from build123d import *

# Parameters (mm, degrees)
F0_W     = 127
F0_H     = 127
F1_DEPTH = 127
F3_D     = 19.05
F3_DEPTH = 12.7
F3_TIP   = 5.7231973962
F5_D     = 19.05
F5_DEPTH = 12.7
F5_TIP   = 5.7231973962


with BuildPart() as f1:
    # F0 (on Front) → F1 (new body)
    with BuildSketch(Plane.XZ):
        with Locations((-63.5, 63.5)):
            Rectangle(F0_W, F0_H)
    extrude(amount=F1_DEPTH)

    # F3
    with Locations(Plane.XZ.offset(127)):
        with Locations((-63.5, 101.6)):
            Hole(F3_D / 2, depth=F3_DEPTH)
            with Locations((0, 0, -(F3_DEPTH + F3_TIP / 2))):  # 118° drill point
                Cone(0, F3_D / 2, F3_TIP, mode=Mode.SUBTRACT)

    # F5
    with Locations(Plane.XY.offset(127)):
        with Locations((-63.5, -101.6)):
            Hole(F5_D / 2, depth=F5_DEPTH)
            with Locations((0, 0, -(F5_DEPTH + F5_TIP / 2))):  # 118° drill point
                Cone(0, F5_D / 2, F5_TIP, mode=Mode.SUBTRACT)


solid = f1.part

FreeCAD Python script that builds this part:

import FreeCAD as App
import Part
import Sketcher

V = App.Vector
Q = App.Units.Quantity


def add_polygon(sketch, points):
    """Adds a closed chain of lines whose ends are joined by coincident constraints."""
    first, n = sketch.GeometryCount, len(points)
    for a, b in zip(points, points[1:] + points[:1]):
        sketch.addGeometry(Part.LineSegment(App.Vector(*a, 0), App.Vector(*b, 0)), False)
    for i in range(n):
        sketch.addConstraint(Sketcher.Constraint("Coincident", first + i, 2, first + (i + 1) % n, 1))

doc = App.newDocument("Part")
params = doc.addObject("Spreadsheet::Sheet", "Params")
for row, (alias, value) in enumerate([
    ("sketch1_width", "5 in"),
    ("pad1_length", "5 in"),
    ("sketch2_diameter", "0.75 in"),
    ("hole_diameter", "0.75 in"),
    ("hole_depth", "0.5 in"),
    ("sketch3_diameter", "0.75 in"),
    ("hole2_diameter", "0.75 in"),
    ("hole2_depth", "0.5 in"),
], start=1):
    params.set(f"A{row}", alias)
    params.set(f"B{row}", "=" + value)
    params.setAlias(f"B{row}", alias)

body = doc.addObject("PartDesign::Body", "Body")

# Sketch on XZ plane
sketch1 = body.newObject("Sketcher::SketchObject", "Sketch")
sketch1.AttachmentSupport = (doc.getObject("XZ_Plane"), [""])
sketch1.MapMode = "FlatFace"
add_polygon(sketch1, [(-127, 127), (-127, 0), (0, 0), (0, 127)])  # lines 0-3
sketch1.addConstraint([
    Sketcher.Constraint("Vertical", 0),
    Sketcher.Constraint("Horizontal", 1),
    Sketcher.Constraint("Vertical", 2),
    Sketcher.Constraint("Horizontal", 3),
    Sketcher.Constraint("Coincident", 1, 2, -1, 1),
    Sketcher.Constraint("Equal", 3, 0),
    Sketcher.Constraint("DistanceX", 1, 1, 1, 2, Q("5 in")),
])
sketch1.setExpression("Constraints[10]", "Params.sketch1_width")
pad1 = body.newObject("PartDesign::Pad", "Pad")
pad1.Profile = sketch1
pad1.setExpression("Length", "Params.pad1_length")

# Sketch on XZ plane
sketch2 = body.newObject("Sketcher::SketchObject", "Sketch001")
sketch2.AttachmentSupport = (doc.getObject("XZ_Plane"), [""])
sketch2.MapMode = "FlatFace"
sketch2.AttachmentOffset = App.Placement(V(0, 0, 5 * 25.4), App.Rotation())
sketch2.addGeometry(Part.Circle(V(-64, 102, 0), V(0, 0, 1), 10), False)
sketch2.addConstraint([
    Sketcher.Constraint("Diameter", 0, Q("0.75 in")),
    Sketcher.Constraint("DistanceY", -1, 1, 0, 3, Q("4 in")),
    Sketcher.Constraint("DistanceX", 0, 3, -1, 1, Q("2.5 in")),
])
sketch2.setExpression("Constraints[0]", "Params.sketch2_diameter")
doc.recompute()
hole = body.newObject("PartDesign::Hole", "Hole")
hole.Profile = sketch2
hole.ThreadType = "None"
hole.setExpression("Diameter", "Params.hole_diameter")
hole.DepthType = "Dimension"
hole.setExpression("Depth", "Params.hole_depth")
hole.DrillPoint = "Angled"
hole.DrillPointAngle = 118

# Sketch on XY plane
sketch3 = body.newObject("Sketcher::SketchObject", "Sketch002")
sketch3.AttachmentSupport = (doc.getObject("XY_Plane"), [""])
sketch3.MapMode = "FlatFace"
sketch3.AttachmentOffset = App.Placement(V(0, 0, 5 * 25.4), App.Rotation())
sketch3.addGeometry(Part.Circle(V(-64, -102, 0), V(0, 0, 1), 10), False)
sketch3.addConstraint([
    Sketcher.Constraint("Diameter", 0, Q("0.75 in")),
    Sketcher.Constraint("DistanceY", 0, 3, -1, 1, Q("4 in")),
    Sketcher.Constraint("DistanceX", 0, 3, -1, 1, Q("2.5 in")),
])
sketch3.setExpression("Constraints[0]", "Params.sketch3_diameter")
doc.recompute()
hole2 = body.newObject("PartDesign::Hole", "Hole001")
hole2.Profile = sketch3
hole2.ThreadType = "None"
hole2.setExpression("Diameter", "Params.hole2_diameter")
hole2.DepthType = "Dimension"
hole2.setExpression("Depth", "Params.hole2_depth")
hole2.DrillPoint = "Angled"
hole2.DrillPointAngle = 118

doc.recompute()
